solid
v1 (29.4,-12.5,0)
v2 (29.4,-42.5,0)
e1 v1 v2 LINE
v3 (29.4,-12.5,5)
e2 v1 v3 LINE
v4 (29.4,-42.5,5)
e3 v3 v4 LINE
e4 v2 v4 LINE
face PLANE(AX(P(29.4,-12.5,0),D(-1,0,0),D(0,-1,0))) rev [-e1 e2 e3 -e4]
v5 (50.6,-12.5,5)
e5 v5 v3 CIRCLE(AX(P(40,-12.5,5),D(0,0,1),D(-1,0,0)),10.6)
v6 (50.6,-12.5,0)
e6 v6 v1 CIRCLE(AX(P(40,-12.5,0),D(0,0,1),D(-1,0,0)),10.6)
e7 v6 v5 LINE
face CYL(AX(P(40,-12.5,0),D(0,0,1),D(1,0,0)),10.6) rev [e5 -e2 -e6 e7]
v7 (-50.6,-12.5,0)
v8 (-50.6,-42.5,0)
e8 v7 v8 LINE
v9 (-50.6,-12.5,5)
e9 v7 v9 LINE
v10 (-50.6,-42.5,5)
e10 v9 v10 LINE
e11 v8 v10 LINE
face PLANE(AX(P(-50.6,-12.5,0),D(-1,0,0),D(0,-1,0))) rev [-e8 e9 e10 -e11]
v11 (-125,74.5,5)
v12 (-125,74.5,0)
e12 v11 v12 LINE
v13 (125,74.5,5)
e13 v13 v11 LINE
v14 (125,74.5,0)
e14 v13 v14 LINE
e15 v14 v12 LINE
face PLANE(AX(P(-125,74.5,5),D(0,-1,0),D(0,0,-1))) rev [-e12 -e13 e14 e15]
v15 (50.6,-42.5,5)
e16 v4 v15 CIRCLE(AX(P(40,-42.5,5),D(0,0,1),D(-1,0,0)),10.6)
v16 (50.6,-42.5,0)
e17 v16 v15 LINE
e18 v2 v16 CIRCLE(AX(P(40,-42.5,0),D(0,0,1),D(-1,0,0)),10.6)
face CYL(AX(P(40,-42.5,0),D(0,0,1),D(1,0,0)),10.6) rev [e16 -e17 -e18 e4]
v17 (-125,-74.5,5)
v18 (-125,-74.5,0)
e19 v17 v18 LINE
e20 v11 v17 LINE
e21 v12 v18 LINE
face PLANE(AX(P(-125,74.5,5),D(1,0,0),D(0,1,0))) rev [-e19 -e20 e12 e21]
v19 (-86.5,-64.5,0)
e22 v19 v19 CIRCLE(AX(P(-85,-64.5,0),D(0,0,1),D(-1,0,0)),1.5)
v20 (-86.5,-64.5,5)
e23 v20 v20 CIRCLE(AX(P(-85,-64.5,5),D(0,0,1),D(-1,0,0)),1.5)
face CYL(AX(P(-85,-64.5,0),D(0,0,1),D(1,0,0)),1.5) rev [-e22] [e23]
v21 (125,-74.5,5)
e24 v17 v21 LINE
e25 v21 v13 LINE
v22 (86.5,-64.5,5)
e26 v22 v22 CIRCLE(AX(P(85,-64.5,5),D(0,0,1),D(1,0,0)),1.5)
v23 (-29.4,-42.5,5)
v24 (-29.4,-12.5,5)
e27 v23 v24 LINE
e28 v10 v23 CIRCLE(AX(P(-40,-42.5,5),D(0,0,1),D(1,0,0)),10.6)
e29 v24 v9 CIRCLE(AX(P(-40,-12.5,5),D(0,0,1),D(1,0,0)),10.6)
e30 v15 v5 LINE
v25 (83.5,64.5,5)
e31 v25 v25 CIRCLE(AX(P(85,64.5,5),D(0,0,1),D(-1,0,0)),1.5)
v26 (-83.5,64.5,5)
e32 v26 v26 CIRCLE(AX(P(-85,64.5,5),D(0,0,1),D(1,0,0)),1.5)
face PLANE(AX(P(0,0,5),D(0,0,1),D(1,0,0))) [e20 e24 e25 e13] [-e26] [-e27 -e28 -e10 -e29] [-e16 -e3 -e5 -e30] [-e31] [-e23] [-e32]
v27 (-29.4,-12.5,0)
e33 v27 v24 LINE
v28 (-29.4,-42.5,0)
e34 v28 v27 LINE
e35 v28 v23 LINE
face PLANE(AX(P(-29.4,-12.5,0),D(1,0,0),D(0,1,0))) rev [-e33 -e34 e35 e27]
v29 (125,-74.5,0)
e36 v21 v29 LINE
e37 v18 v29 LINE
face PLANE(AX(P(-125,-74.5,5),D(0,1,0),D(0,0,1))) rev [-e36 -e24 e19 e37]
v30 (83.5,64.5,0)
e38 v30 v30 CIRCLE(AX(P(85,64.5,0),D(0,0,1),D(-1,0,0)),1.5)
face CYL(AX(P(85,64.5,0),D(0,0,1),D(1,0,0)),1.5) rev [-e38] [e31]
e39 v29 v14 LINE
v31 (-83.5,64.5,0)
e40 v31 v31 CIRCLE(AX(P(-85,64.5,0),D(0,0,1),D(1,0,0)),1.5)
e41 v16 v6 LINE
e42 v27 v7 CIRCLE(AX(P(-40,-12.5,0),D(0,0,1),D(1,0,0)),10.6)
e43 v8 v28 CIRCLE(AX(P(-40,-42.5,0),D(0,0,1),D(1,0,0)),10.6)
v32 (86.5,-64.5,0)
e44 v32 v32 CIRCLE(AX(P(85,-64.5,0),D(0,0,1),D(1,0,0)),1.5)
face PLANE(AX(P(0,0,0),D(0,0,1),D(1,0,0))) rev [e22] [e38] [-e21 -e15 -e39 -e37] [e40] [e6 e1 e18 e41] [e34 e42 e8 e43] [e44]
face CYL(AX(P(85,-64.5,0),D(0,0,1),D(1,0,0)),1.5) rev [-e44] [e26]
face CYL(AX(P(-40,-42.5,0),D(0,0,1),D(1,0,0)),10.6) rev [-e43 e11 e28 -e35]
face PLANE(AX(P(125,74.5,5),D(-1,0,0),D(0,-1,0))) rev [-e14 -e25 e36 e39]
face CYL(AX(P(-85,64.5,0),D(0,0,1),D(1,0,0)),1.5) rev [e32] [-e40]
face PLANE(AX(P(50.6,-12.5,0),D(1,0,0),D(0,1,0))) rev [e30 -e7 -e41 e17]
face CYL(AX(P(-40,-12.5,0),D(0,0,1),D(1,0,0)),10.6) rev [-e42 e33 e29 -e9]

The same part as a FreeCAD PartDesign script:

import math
import FreeCAD as App
import Part
import Sketcher
from FreeCAD import Vector
Q = App.Units.Quantity

doc = App.newDocument("Part")
body = doc.addObject("PartDesign::Body", "Body")

# Sketch on XY plane
sketch1 = body.newObject("Sketcher::SketchObject", "Sketch")
sketch1.AttachmentSupport = (doc.getObject("XY_Plane"), [""])
sketch1.MapMode = "FlatFace"
sketch1.addGeometry([
    Part.LineSegment(Vector(-125, 74, 0), Vector(-125, -74, 0)),
    Part.LineSegment(Vector(-125, -74, 0), Vector(125, -74, 0)),
    Part.LineSegment(Vector(125, -74, 0), Vector(125, 74, 0)),
    Part.LineSegment(Vector(125, 74, 0), Vector(-125, 74, 0)),
], False)
sketch1.addConstraint([
    Sketcher.Constraint("Coincident", 0, 2, 1, 1),
    Sketcher.Constraint("Coincident", 1, 2, 2, 1),
    Sketcher.Constraint("Coincident", 2, 2, 3, 1),
    Sketcher.Constraint("Coincident", 3, 2, 0, 1),
    Sketcher.Constraint("Vertical", 0),
    Sketcher.Constraint("Horizontal", 1),
    Sketcher.Constraint("Vertical", 2),
    Sketcher.Constraint("Horizontal", 3),
    Sketcher.Constraint("Symmetric", 0, 2, 2, 2, -1, 1),
    Sketcher.Constraint("DistanceX", 1, 1, 1, 2, Q("250 mm")),
    Sketcher.Constraint("DistanceY", 0, 2, 0, 1, Q("149 mm")),
])
pad1 = body.newObject("PartDesign::Pad", "Pad")
pad1.Profile = sketch1
pad1.Length = 5

# Sketch on XY plane
sketch2 = body.newObject("Sketcher::SketchObject", "Sketch001")
sketch2.AttachmentSupport = (doc.getObject("XY_Plane"), [""])
sketch2.MapMode = "FlatFace"
sketch2.AttachmentOffset = App.Placement(Vector(0, 0, 5), App.Rotation())
sketch2.addGeometry([
    Part.Circle(Vector(-85, 64.5, 0), Vector(0, 0, 1), 1.5),
    Part.Circle(Vector(-85, -64.5, 0), Vector(0, 0, 1), 1.5),
    Part.Circle(Vector(85, -64.5, 0), Vector(0, 0, 1), 1.5),
    Part.Circle(Vector(85, 64.5, 0), Vector(0, 0, 1), 1.5),
], False)
sketch2.addConstraint([
    Sketcher.Constraint("Equal", 0, 1),
    Sketcher.Constraint("Equal", 1, 2),
    Sketcher.Constraint("Equal", 2, 3),
    Sketcher.Constraint("Symmetric", 0, 3, 2, 3, -1, 1),
    Sketcher.Constraint("Symmetric", 1, 3, 3, 3, -1, 1),
    Sketcher.Constraint("Symmetric", 1, 3, 2, 3, -2),
    Sketcher.Constraint("Diameter", 0, Q("3 mm")),
    Sketcher.Constraint("DistanceX", 0, 3, -1, 1, Q("85 mm")),
    Sketcher.Constraint("DistanceY", 1, 3, 0, 3, Q("129 mm")),
])
pocket1 = body.newObject("PartDesign::Pocket", "Pocket")
pocket1.Profile = sketch2
pocket1.Length = 5

# Sketch on XY plane
sketch3 = body.newObject("Sketcher::SketchObject", "Sketch002")
sketch3.AttachmentSupport = (doc.getObject("XY_Plane"), [""])
sketch3.MapMode = "FlatFace"
sketch3.AttachmentOffset = App.Placement(Vector(0, 0, 5), App.Rotation())
sketch3.addGeometry([
    Part.LineSegment(Vector(-29, -42, 0), Vector(-29, -12, 0)),  # 0
    Part.ArcOfCircle(Part.Circle(Vector(-40, -12, 0), Vector(0, 0, 1), 11), math.radians(0), math.radians(180)),  # 1
    Part.LineSegment(Vector(-51, -12, 0), Vector(-51, -42, 0)),  # 2
    Part.ArcOfCircle(Part.Circle(Vector(-40, -42, 0), Vector(0, 0, 1), 11), math.radians(180), math.radians(360)),  # 3
    Part.LineSegment(Vector(29, -12, 0), Vector(29, -42, 0)),  # 4
    Part.ArcOfCircle(Part.Circle(Vector(40, -42, 0), Vector(0, 0, 1), 11), math.radians(180), math.radians(360)),  # 5
    Part.LineSegment(Vector(51, -42, 0), Vector(51, -12, 0)),  # 6
    Part.ArcOfCircle(Part.Circle(Vector(40, -12, 0), Vector(0, 0, 1), 11), math.radians(0), math.radians(180)),  # 7
], False)
sketch3.addConstraint([
    Sketcher.Constraint("Tangent", 0, 2, 1, 1),
    Sketcher.Constraint("Tangent", 1, 2, 2, 1),
    Sketcher.Constraint("Tangent", 2, 2, 3, 1),
    Sketcher.Constraint("Tangent", 3, 2, 0, 1),
    Sketcher.Constraint("Tangent", 4, 2, 5, 1),
    Sketcher.Constraint("Tangent", 5, 2, 6, 1),
    Sketcher.Constraint("Tangent", 6, 2, 7, 1),
    Sketcher.Constraint("Tangent", 7, 2, 4, 1),
    Sketcher.Constraint("Vertical", 0),
    Sketcher.Constraint("Vertical", 2),
    Sketcher.Constraint("Vertical", 4),
    Sketcher.Constraint("Vertical", 6),
    Sketcher.Constraint("Equal", 3, 5),
    Sketcher.Constraint("Symmetric", 3, 3, 5, 3, -2),
    Sketcher.Constraint("Horizontal", 1, 3, 7, 3),
    Sketcher.Constraint("Radius", 1, Q("10.6 mm")),
    Sketcher.Constraint("DistanceY", 0, 1, 0, 2, Q("30 mm")),
    Sketcher.Constraint("DistanceX", 1, 3, -1, 1, Q("40 mm")),
    Sketcher.Constraint("DistanceY", 1, 3, -1, 1, Q("12.5 mm")),
])
pocket2 = body.newObject("PartDesign::Pocket", "Pocket001")
pocket2.Profile = sketch3
pocket2.Length = 5

doc.recompute()
